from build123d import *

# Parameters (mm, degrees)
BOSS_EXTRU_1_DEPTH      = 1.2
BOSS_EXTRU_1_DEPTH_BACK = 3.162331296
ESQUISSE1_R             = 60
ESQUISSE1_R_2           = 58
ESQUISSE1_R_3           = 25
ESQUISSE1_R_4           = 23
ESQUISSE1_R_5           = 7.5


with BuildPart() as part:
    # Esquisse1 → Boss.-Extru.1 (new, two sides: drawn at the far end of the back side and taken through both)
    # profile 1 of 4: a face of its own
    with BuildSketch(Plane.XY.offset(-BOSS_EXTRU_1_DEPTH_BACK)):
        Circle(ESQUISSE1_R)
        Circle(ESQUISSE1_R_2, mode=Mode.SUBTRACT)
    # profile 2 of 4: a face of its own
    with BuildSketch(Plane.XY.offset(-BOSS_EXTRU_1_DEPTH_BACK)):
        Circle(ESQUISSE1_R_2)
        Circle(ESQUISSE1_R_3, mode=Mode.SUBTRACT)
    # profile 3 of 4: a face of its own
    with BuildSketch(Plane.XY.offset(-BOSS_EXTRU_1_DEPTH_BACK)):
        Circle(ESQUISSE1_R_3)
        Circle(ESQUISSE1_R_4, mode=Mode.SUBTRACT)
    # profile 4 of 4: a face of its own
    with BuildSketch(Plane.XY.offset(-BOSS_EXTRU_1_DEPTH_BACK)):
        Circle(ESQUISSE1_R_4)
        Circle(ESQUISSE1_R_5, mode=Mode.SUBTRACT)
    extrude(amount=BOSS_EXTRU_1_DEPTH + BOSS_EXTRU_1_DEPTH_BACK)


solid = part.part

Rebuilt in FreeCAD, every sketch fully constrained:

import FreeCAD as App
import Part
import Sketcher
Q = App.Units.Quantity

doc = App.newDocument("Part")
params = doc.addObject("Spreadsheet::Sheet", "Params")
for row, (alias, value) in enumerate([
    ("sketch1_diameter", "120 mm"),
    ("sketch1_diameter2", "15 mm"),
    ("pad1_length", "1.2 mm"),
    ("pad1_length2", "3.162331 mm"),
], start=1):
    params.set(f"A{row}", alias)
    params.set(f"B{row}", "=" + value)
    params.setAlias(f"B{row}", alias)

body = doc.addObject("PartDesign::Body", "Body")

# Sketch on XY plane
sketch1 = doc.addObject("Sketcher::SketchObject", "Sketch")
body.addObject(sketch1)
sketch1.AttachmentSupport = (doc.XY_Plane, [""])
sketch1.MapMode = "FlatFace"
sketch1.addGeometry(Part.Circle(App.Vector(0, 0, 0), App.Vector(0, 0, 1), 60), False)
sketch1.addGeometry(Part.Circle(App.Vector(0, 0, 0), App.Vector(0, 0, 1), 8), False)
sketch1.addConstraint(Sketcher.Constraint("Coincident", 0, 3, -1, 1))
sketch1.addConstraint(Sketcher.Constraint("Coincident", 1, 3, -1, 1))
sketch1.addConstraint(Sketcher.Constraint("Diameter", 0, Q("120 mm")))
sketch1.addConstraint(Sketcher.Constraint("Diameter", 1, Q("15 mm")))
sketch1.setExpression("Constraints[2]", "Params.sketch1_diameter")
sketch1.setExpression("Constraints[3]", "Params.sketch1_diameter2")
pad1 = doc.addObject("PartDesign::Pad", "Pad")
body.addObject(pad1)
pad1.Profile = sketch1
pad1.Type = "TwoLengths"
pad1.setExpression("Length", "Params.pad1_length")
pad1.setExpression("Length2", "Params.pad1_length2")

doc.recompute()
